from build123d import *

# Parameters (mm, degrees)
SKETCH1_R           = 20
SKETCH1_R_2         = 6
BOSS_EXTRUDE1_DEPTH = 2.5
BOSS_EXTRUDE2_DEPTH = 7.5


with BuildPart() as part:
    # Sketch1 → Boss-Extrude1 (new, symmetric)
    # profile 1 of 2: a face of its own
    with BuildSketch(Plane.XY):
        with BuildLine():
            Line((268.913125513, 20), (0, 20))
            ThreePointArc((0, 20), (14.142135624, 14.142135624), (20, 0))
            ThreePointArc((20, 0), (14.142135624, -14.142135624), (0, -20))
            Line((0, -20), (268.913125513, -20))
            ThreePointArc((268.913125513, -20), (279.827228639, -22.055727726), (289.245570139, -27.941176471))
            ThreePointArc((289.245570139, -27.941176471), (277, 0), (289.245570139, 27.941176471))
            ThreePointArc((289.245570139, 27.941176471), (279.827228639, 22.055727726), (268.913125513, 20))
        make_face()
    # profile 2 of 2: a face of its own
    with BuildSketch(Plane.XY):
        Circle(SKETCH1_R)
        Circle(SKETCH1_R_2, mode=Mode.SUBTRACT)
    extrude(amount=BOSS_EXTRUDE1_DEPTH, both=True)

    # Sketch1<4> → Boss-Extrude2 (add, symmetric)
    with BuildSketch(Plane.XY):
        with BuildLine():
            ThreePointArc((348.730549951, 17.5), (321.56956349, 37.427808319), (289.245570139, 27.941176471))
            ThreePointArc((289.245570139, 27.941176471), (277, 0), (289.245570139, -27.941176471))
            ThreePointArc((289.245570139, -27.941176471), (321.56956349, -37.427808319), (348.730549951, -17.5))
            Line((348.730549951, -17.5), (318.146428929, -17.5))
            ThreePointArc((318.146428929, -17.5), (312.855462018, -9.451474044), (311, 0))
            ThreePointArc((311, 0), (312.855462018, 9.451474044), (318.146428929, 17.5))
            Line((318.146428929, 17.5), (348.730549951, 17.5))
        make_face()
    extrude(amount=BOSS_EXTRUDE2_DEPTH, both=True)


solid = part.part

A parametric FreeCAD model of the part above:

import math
import FreeCAD as App
import Part
import Sketcher
Q = App.Units.Quantity

doc = App.newDocument("Part")
body = doc.addObject("PartDesign::Body", "Body")

# Sketch on XY plane
sketch1 = body.newObject("Sketcher::SketchObject", "Sketch")
sketch1.AttachmentSupport = (doc.getObject("XY_Plane"), [""])
sketch1.MapMode = "FlatFace"
sketch1.addGeometry(Part.LineSegment(App.Vector(269, 20, 0), App.Vector(0, 20, 0)), False)
sketch1.addGeometry(Part.ArcOfCircle(Part.Circle(App.Vector(0, 0, 0), App.Vector(0, 0, 1), 20), math.radians(90), math.radians(270)), False)
sketch1.addGeometry(Part.LineSegment(App.Vector(0, -20, 0), App.Vector(269, -20, 0)), False)
sketch1.addGeometry(Part.ArcOfCircle(Part.Circle(App.Vector(269, -50, 0), App.Vector(0, 0, 1), 30), math.radians(47), math.radians(90)), False)
sketch1.addGeometry(Part.ArcOfCircle(Part.Circle(App.Vector(315, 0, 0), App.Vector(0, 0, 1), 38), math.radians(133), math.radians(227)), False)
sketch1.addGeometry(Part.ArcOfCircle(Part.Circle(App.Vector(269, 50, 0), App.Vector(0, 0, 1), 30), math.radians(-90), math.radians(-47)), False)
sketch1.addGeometry(Part.Circle(App.Vector(0, 0, 0), App.Vector(0, 0, 1), 6), False)
sketch1.addConstraint(Sketcher.Constraint("Tangent", 0, 2, 1, 1))
sketch1.addConstraint(Sketcher.Constraint("Tangent", 1, 2, 2, 1))
sketch1.addConstraint(Sketcher.Constraint("Tangent", 2, 2, 3, 2))
sketch1.addConstraint(Sketcher.Constraint("Tangent", 3, 1, 4, 2))
sketch1.addConstraint(Sketcher.Constraint("Tangent", 4, 1, 5, 2))
sketch1.addConstraint(Sketcher.Constraint("Tangent", 5, 1, 0, 1))
sketch1.addConstraint(Sketcher.Constraint("Horizontal", 0))
sketch1.addConstraint(Sketcher.Constraint("Horizontal", 2))
sketch1.addConstraint(Sketcher.Constraint("Coincident", 1, 3, -1, 1))
sketch1.addConstraint(Sketcher.Constraint("Coincident", 6, 3, -1, 1))
sketch1.addConstraint(Sketcher.Constraint("Equal", 3, 5))
sketch1.addConstraint(Sketcher.Constraint("PointOnObject", 4, 3, -1))
sketch1.addConstraint(Sketcher.Constraint("Diameter", 6, Q("12 mm")))
sketch1.addConstraint(Sketcher.Constraint("Radius", 1, Q("20 mm")))
sketch1.addConstraint(Sketcher.Constraint("Radius", 3, Q("30 mm")))
sketch1.addConstraint(Sketcher.Constraint("Radius", 4, Q("38 mm")))
sketch1.addConstraint(Sketcher.Constraint("DistanceX", -1, 1, 4, 3, Q("315 mm")))
pad1 = body.newObject("PartDesign::Pad", "Pad")
pad1.Profile = sketch1
pad1.Length = 5
pad1.Midplane = True

# Sketch on XY plane
sketch2 = body.newObject("Sketcher::SketchObject", "Sketch001")
sketch2.AttachmentSupport = (doc.getObject("XY_Plane"), [""])
sketch2.MapMode = "FlatFace"
sketch2.addGeometry(Part.ArcOfCircle(Part.Circle(App.Vector(315, 0, 0), App.Vector(0, 0, 1), 38), math.radians(27), math.radians(133)), False)
sketch2.addGeometry(Part.ArcOfCircle(Part.Circle(App.Vector(315, 0, 0), App.Vector(0, 0, 1), 38), math.radians(133), math.radians(227)), False)
sketch2.addGeometry(Part.ArcOfCircle(Part.Circle(App.Vector(315, 0, 0), App.Vector(0, 0, 1), 38), math.radians(-133), math.radians(-27)), False)
sketch2.addGeometry(Part.LineSegment(App.Vector(349, -18, 0), App.Vector(318, -18, 0)), False)
sketch2.addGeometry(Part.ArcOfCircle(Part.Circle(App.Vector(336, 0, 0), App.Vector(0, 0, 1), 25), math.radians(180), math.radians(224)), False)
sketch2.addGeometry(Part.ArcOfCircle(Part.Circle(App.Vector(336, 0, 0), App.Vector(0, 0, 1), 25), math.radians(136), math.radians(180)), False)
sketch2.addGeometry(Part.LineSegment(App.Vector(318, 18, 0), App.Vector(349, 18, 0)), False)
sketch2.addConstraint(Sketcher.Constraint("Tangent", 0, 2, 1, 1))
sketch2.addConstraint(Sketcher.Constraint("Tangent", 1, 2, 2, 1))
sketch2.addConstraint(Sketcher.Constraint("Coincident", 2, 2, 3, 1))
sketch2.addConstraint(Sketcher.Constraint("Coincident", 3, 2, 4, 2))
sketch2.addConstraint(Sketcher.Constraint("Tangent", 4, 1, 5, 2))
sketch2.addConstraint(Sketcher.Constraint("Coincident", 5, 1, 6, 1))
sketch2.addConstraint(Sketcher.Constraint("Coincident", 6, 2, 0, 1))
sketch2.addConstraint(Sketcher.Constraint("Horizontal", 3))
sketch2.addConstraint(Sketcher.Constraint("Horizontal", 6))
sketch2.addConstraint(Sketcher.Constraint("Coincident", 2, 3, 0, 3))
sketch2.addConstraint(Sketcher.Constraint("Equal", 4, 5))
sketch2.addConstraint(Sketcher.Constraint("Symmetric", 0, 2, 1, 2, -1))
sketch2.addConstraint(Sketcher.Constraint("Symmetric", 3, 2, 5, 1, -1))
sketch2.addConstraint(Sketcher.Constraint("PointOnObject", 4, 1, -1))
sketch2.addConstraint(Sketcher.Constraint("Radius", 0, Q("38 mm")))
sketch2.addConstraint(Sketcher.Constraint("Radius", 4, Q("25 mm")))
sketch2.addConstraint(Sketcher.Constraint("DistanceX", -1, 1, 0, 3, Q("315 mm")))
sketch2.addConstraint(Sketcher.Constraint("DistanceX", -1, 1, 4, 3, Q("336 mm")))
sketch2.addConstraint(Sketcher.Constraint("DistanceY", 2, 2, 6, 2, Q("35 mm")))
sketch2.addConstraint(Sketcher.Constraint("DistanceX", -1, 1, 0, 2, Q("289.24557 mm")))
pad2 = body.newObject("PartDesign::Pad", "Pad001")
pad2.Profile = sketch2
pad2.Length = 15
pad2.Midplane = True

doc.recompute()
